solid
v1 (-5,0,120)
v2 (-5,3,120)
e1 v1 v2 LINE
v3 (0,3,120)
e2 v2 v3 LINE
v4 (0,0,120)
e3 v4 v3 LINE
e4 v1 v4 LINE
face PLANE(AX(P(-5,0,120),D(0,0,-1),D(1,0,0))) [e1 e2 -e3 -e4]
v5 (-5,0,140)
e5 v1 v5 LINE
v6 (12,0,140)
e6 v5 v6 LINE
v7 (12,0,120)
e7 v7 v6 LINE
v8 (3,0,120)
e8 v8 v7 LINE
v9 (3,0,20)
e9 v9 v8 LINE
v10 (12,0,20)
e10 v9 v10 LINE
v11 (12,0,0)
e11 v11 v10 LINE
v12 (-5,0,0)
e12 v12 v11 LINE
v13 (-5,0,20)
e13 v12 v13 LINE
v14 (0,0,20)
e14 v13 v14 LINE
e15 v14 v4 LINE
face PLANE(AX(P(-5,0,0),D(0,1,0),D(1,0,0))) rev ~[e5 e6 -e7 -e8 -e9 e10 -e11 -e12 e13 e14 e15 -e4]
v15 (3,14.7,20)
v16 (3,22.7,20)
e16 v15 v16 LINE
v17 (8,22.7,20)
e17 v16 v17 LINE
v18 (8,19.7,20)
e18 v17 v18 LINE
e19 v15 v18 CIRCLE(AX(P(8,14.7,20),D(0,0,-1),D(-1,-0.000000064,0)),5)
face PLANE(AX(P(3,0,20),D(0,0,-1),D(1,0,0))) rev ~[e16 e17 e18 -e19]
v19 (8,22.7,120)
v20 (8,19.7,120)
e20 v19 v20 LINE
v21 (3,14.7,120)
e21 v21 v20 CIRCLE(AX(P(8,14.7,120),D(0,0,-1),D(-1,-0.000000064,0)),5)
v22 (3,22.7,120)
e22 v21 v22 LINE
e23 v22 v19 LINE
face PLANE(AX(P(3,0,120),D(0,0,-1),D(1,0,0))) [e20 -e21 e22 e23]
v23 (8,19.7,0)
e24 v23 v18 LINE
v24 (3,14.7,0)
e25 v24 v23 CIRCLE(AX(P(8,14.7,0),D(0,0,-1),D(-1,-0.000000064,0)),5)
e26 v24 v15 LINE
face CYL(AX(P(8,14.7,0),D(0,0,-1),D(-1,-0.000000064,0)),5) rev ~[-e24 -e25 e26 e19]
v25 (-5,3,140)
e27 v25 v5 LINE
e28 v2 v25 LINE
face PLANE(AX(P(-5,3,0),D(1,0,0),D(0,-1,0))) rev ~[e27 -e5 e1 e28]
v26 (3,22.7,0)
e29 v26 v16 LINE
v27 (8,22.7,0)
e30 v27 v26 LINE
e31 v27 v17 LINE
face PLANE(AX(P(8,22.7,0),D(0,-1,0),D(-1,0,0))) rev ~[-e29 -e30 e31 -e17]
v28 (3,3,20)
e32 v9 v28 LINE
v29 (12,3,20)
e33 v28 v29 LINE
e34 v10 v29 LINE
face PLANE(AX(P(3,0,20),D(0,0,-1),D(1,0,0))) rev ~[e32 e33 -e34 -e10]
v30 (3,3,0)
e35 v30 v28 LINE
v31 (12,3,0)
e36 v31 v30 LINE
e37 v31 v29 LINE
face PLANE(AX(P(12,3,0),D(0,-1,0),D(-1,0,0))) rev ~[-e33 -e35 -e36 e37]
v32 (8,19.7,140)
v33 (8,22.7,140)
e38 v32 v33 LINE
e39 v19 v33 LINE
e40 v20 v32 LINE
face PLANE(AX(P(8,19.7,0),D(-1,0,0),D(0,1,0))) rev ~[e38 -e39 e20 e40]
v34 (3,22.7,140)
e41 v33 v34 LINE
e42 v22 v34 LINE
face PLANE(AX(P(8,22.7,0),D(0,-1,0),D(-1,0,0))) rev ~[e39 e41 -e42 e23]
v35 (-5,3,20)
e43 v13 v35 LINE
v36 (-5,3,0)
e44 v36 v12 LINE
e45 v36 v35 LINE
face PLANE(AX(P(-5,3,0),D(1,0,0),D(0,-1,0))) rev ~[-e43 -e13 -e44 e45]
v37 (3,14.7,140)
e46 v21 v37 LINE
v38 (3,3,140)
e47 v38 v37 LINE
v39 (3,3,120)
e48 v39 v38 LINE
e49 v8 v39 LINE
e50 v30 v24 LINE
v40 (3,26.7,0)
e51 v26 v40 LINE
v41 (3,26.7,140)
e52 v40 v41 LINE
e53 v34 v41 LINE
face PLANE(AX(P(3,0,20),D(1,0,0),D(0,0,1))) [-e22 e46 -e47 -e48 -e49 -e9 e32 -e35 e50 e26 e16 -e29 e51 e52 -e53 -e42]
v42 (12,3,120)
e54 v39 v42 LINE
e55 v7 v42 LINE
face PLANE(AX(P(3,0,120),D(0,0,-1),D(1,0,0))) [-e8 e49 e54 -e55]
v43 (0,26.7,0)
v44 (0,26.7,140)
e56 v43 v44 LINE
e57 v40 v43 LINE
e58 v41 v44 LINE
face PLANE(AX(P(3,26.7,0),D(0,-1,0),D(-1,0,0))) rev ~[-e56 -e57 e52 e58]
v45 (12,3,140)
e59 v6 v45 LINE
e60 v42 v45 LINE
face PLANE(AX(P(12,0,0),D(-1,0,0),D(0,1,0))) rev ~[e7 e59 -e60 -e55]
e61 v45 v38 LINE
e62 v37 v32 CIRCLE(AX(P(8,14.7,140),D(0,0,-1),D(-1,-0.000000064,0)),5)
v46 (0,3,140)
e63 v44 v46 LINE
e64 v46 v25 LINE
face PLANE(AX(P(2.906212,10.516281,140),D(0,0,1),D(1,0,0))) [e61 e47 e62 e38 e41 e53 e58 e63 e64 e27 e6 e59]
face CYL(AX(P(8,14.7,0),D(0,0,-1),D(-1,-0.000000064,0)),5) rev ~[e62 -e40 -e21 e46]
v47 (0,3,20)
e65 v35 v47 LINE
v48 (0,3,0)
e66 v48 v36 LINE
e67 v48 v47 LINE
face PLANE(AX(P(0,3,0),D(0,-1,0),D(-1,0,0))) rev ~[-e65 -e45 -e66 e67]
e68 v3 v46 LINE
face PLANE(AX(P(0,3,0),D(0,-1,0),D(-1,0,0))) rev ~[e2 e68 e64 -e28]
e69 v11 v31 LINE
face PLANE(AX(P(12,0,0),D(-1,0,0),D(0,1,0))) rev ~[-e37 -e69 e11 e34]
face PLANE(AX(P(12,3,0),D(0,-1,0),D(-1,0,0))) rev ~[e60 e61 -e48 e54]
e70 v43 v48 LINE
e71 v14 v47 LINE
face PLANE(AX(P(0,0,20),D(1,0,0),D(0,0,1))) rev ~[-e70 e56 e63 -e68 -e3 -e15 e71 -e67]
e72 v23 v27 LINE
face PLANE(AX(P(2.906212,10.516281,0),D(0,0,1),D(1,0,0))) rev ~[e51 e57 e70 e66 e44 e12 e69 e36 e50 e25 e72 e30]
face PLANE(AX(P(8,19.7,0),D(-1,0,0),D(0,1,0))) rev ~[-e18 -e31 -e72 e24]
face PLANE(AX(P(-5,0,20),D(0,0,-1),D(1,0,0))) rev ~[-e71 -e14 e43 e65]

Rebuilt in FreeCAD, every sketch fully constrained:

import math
import FreeCAD as App
import Part
import Sketcher

doc = App.newDocument("Part")
body = doc.addObject("PartDesign::Body", "Body")

# Sketch on XY plane
sketch1 = body.newObject("Sketcher::SketchObject", "Sketch")
sketch1.AttachmentSupport = (doc.getObject("XY_Plane"), [""])
sketch1.MapMode = "FlatFace"
sketch1.addGeometry(Part.LineSegment(App.Vector(-5, 0, 0), App.Vector(12, 0, 0)), False)
sketch1.addGeometry(Part.LineSegment(App.Vector(12, 0, 0), App.Vector(12, 3, 0)), False)
sketch1.addGeometry(Part.LineSegment(App.Vector(12, 3, 0), App.Vector(3, 3, 0)), False)
sketch1.addGeometry(Part.LineSegment(App.Vector(3, 3, 0), App.Vector(3, 14.7, 0)), False)
sketch1.addGeometry(Part.ArcOfCircle(Part.Circle(App.Vector(8, 14.7, 0), App.Vector(0, 0, 1), 5), math.radians(90), math.radians(180)), False)
sketch1.addGeometry(Part.LineSegment(App.Vector(8, 19.7, 0), App.Vector(8, 22.7, 0)), False)
sketch1.addGeometry(Part.LineSegment(App.Vector(8, 22.7, 0), App.Vector(3, 22.7, 0)), False)
sketch1.addGeometry(Part.LineSegment(App.Vector(3, 22.7, 0), App.Vector(3, 26.7, 0)), False)
sketch1.addGeometry(Part.LineSegment(App.Vector(3, 26.7, 0), App.Vector(0, 26.7, 0)), False)
sketch1.addGeometry(Part.LineSegment(App.Vector(0, 26.7, 0), App.Vector(0, 3, 0)), False)
sketch1.addGeometry(Part.LineSegment(App.Vector(0, 3, 0), App.Vector(-5, 3, 0)), False)
sketch1.addGeometry(Part.LineSegment(App.Vector(-5, 3, 0), App.Vector(-5, 0, 0)), False)
sketch1.addConstraint(Sketcher.Constraint("Coincident", 0, 2, 1, 1))
sketch1.addConstraint(Sketcher.Constraint("Coincident", 1, 2, 2, 1))
sketch1.addConstraint(Sketcher.Constraint("Coincident", 2, 2, 3, 1))
sketch1.addConstraint(Sketcher.Constraint("Tangent", 3, 2, 4, 2))
sketch1.addConstraint(Sketcher.Constraint("Coincident", 4, 1, 5, 1))
sketch1.addConstraint(Sketcher.Constraint("Coincident", 5, 2, 6, 1))
sketch1.addConstraint(Sketcher.Constraint("Coincident", 6, 2, 7, 1))
sketch1.addConstraint(Sketcher.Constraint("Coincident", 7, 2, 8, 1))
sketch1.addConstraint(Sketcher.Constraint("Coincident", 8, 2, 9, 1))
sketch1.addConstraint(Sketcher.Constraint("Coincident", 9, 2, 10, 1))
sketch1.addConstraint(Sketcher.Constraint("Coincident", 10, 2, 11, 1))
sketch1.addConstraint(Sketcher.Constraint("Coincident", 11, 2, 0, 1))
sketch1.addConstraint(Sketcher.Constraint("Horizontal", 0))
sketch1.addConstraint(Sketcher.Constraint("Vertical", 1))
sketch1.addConstraint(Sketcher.Constraint("Horizontal", 2))
sketch1.addConstraint(Sketcher.Constraint("Vertical", 3))
sketch1.addConstraint(Sketcher.Constraint("Vertical", 5))
sketch1.addConstraint(Sketcher.Constraint("Horizontal", 6))
sketch1.addConstraint(Sketcher.Constraint("Vertical", 7))
sketch1.addConstraint(Sketcher.Constraint("Horizontal", 8))
sketch1.addConstraint(Sketcher.Constraint("Vertical", 9))
sketch1.addConstraint(Sketcher.Constraint("Horizontal", 10))
sketch1.addConstraint(Sketcher.Constraint("Vertical", 11))
sketch1.addConstraint(Sketcher.Constraint("PointOnObject", 0, 2, -1))
sketch1.addConstraint(Sketcher.Constraint("PointOnObject", 8, 2, -2))
sketch1.addConstraint(Sketcher.Constraint("Horizontal", 2, 2, 9, 2))
sketch1.addConstraint(Sketcher.Constraint("Vertical", 3, 2, 6, 2))
sketch1.addConstraint(Sketcher.Constraint("Equal", 6, 10))
sketch1.addConstraint(Sketcher.Constraint("Equal", 8, 1))
sketch1.addConstraint(Sketcher.Constraint("Equal", 1, 5))
sketch1.addConstraint(Sketcher.Constraint("Radius", 4, 5.0))
sketch1.addConstraint(Sketcher.Constraint("DistanceX", 0, 1, 0, 2, 17.0))
sketch1.addConstraint(Sketcher.Constraint("DistanceX", 2, 2, 2, 1, 9.0))
sketch1.addConstraint(Sketcher.Constraint("DistanceX", 6, 2, 6, 1, 5.0))
sketch1.addConstraint(Sketcher.Constraint("DistanceY", 7, 1, 7, 2, 4.0))
sketch1.addConstraint(Sketcher.Constraint("DistanceY", 3, 1, 3, 2, 11.7))
pad1 = body.newObject("PartDesign::Pad", "Pad")
pad1.Profile = sketch1
pad1.Length = 140

# Sketch on XZ plane
sketch2 = body.newObject("Sketcher::SketchObject", "Sketch001")
sketch2.AttachmentSupport = (doc.getObject("XZ_Plane"), [""])
sketch2.MapMode = "FlatFace"
sketch2.addGeometry(Part.LineSegment(App.Vector(-5, 120, 0), App.Vector(-5, 20, 0)), False)
sketch2.addGeometry(Part.LineSegment(App.Vector(-5, 20, 0), App.Vector(0, 20, 0)), False)
sketch2.addGeometry(Part.LineSegment(App.Vector(0, 20, 0), App.Vector(0, 120, 0)), False)
sketch2.addGeometry(Part.LineSegment(App.Vector(0, 120, 0), App.Vector(-5, 120, 0)), False)
sketch2.addGeometry(Part.LineSegment(App.Vector(3, 120, 0), App.Vector(3, 20, 0)), False)
sketch2.addGeometry(Part.LineSegment(App.Vector(3, 20, 0), App.Vector(12, 20, 0)), False)
sketch2.addGeometry(Part.LineSegment(App.Vector(12, 20, 0), App.Vector(12, 120, 0)), False)
sketch2.addGeometry(Part.LineSegment(App.Vector(12, 120, 0), App.Vector(3, 120, 0)), False)
sketch2.addConstraint(Sketcher.Constraint("Coincident", 0, 2, 1, 1))
sketch2.addConstraint(Sketcher.Constraint("Coincident", 1, 2, 2, 1))
sketch2.addConstraint(Sketcher.Constraint("Coincident", 2, 2, 3, 1))
sketch2.addConstraint(Sketcher.Constraint("Coincident", 3, 2, 0, 1))
sketch2.addConstraint(Sketcher.Constraint("Coincident", 4, 2, 5, 1))
sketch2.addConstraint(Sketcher.Constraint("Coincident", 5, 2, 6, 1))
sketch2.addConstraint(Sketcher.Constraint("Coincident", 6, 2, 7, 1))
sketch2.addConstraint(Sketcher.Constraint("Coincident", 7, 2, 4, 1))
sketch2.addConstraint(Sketcher.Constraint("Vertical", 0))
sketch2.addConstraint(Sketcher.Constraint("Horizontal", 1))
sketch2.addConstraint(Sketcher.Constraint("Vertical", 2))
sketch2.addConstraint(Sketcher.Constraint("Horizontal", 3))
sketch2.addConstraint(Sketcher.Constraint("Vertical", 4))
sketch2.addConstraint(Sketcher.Constraint("Horizontal", 5))
sketch2.addConstraint(Sketcher.Constraint("Vertical", 6))
sketch2.addConstraint(Sketcher.Constraint("Horizontal", 7))
sketch2.addConstraint(Sketcher.Constraint("PointOnObject", 1, 2, -2))
sketch2.addConstraint(Sketcher.Constraint("Horizontal", 1, 2, 4, 2))
sketch2.addConstraint(Sketcher.Constraint("Horizontal", 3, 2, 6, 2))
sketch2.addConstraint(Sketcher.Constraint("DistanceX", 1, 1, 1, 2, 5.0))
sketch2.addConstraint(Sketcher.Constraint("DistanceX", 5, 1, 5, 2, 9.0))
sketch2.addConstraint(Sketcher.Constraint("DistanceY", 0, 2, 0, 1, 100.0))
sketch2.addConstraint(Sketcher.Constraint("DistanceY", -1, 1, 0, 2, 20.0))
sketch2.addConstraint(Sketcher.Constraint("DistanceX", -1, 1, 4, 2, 3.0))
pocket1 = body.newObject("PartDesign::Pocket", "Pocket")
pocket1.Profile = sketch2
pocket1.Length = 25

doc.recompute()
